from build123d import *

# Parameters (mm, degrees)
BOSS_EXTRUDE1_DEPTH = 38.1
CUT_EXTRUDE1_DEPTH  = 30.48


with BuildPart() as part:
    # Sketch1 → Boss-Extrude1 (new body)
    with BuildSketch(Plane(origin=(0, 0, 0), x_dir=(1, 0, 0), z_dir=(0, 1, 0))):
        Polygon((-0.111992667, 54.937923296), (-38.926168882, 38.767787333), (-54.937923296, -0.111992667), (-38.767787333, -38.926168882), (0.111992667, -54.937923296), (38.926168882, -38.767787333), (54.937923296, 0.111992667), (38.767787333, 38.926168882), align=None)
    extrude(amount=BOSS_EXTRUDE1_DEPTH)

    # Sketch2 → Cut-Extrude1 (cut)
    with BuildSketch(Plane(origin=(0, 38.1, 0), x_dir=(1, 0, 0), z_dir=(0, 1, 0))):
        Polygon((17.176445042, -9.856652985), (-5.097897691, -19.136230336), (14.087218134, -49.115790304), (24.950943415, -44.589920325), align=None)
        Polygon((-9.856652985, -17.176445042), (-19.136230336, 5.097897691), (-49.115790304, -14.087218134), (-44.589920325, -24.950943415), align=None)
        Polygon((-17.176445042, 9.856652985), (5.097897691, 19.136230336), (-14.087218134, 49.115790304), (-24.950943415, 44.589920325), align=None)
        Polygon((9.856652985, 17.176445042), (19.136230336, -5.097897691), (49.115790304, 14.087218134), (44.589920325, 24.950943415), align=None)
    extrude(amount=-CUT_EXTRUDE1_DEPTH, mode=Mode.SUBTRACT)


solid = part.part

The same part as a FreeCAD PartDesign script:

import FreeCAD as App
import Part
import Sketcher
Q = App.Units.Quantity

doc = App.newDocument("Part")
body = doc.addObject("PartDesign::Body", "Body")

sketch1 = doc.addObject("Sketcher::SketchObject", "Sketch")
body.addObject(sketch1)
sketch1.AttachmentSupport = (doc.XZ_Plane, [""])
sketch1.MapMode = "FlatFace"
sketch1.addGeometry(Part.LineSegment(App.Vector(0, -55, 0), App.Vector(-39, -39, 0)), False)
sketch1.addGeometry(Part.LineSegment(App.Vector(-39, -39, 0), App.Vector(-55, 0, 0)), False)
sketch1.addGeometry(Part.LineSegment(App.Vector(-55, 0, 0), App.Vector(-39, 39, 0)), False)
sketch1.addGeometry(Part.LineSegment(App.Vector(-39, 39, 0), App.Vector(0, 55, 0)), False)
sketch1.addGeometry(Part.LineSegment(App.Vector(0, 55, 0), App.Vector(39, 39, 0)), False)
sketch1.addGeometry(Part.LineSegment(App.Vector(39, 39, 0), App.Vector(55, 0, 0)), False)
sketch1.addGeometry(Part.LineSegment(App.Vector(55, 0, 0), App.Vector(39, -39, 0)), False)
sketch1.addGeometry(Part.LineSegment(App.Vector(39, -39, 0), App.Vector(0, -55, 0)), False)
sketch1.addConstraint(Sketcher.Constraint("Coincident", 0, 2, 1, 1))
sketch1.addConstraint(Sketcher.Constraint("Coincident", 1, 2, 2, 1))
sketch1.addConstraint(Sketcher.Constraint("Coincident", 2, 2, 3, 1))
sketch1.addConstraint(Sketcher.Constraint("Coincident", 3, 2, 4, 1))
sketch1.addConstraint(Sketcher.Constraint("Coincident", 4, 2, 5, 1))
sketch1.addConstraint(Sketcher.Constraint("Coincident", 5, 2, 6, 1))
sketch1.addConstraint(Sketcher.Constraint("Coincident", 6, 2, 7, 1))
sketch1.addConstraint(Sketcher.Constraint("Coincident", 7, 2, 0, 1))
sketch1.addConstraint(Sketcher.Constraint("Symmetric", 0, 2, 4, 2, -1, 1))
sketch1.addConstraint(Sketcher.Constraint("Symmetric", 1, 2, 5, 2, -1, 1))
sketch1.addConstraint(Sketcher.Constraint("Symmetric", 2, 2, 6, 2, -1, 1))
sketch1.addConstraint(Sketcher.Constraint("Symmetric", 3, 2, 7, 2, -1, 1))
sketch1.addConstraint(Sketcher.Constraint("Perpendicular", 0, 2))
sketch1.addConstraint(Sketcher.Constraint("Perpendicular", 1, 3))
sketch1.addConstraint(Sketcher.Constraint("Equal", 0, 1))
sketch1.addConstraint(Sketcher.Constraint("Equal", 1, 2))
sketch1.addConstraint(Sketcher.Constraint("Equal", 2, 3))
sketch1.addConstraint(Sketcher.Constraint("DistanceY", 0, 2, 1, 2, Q("1.5307 in")))
sketch1.addConstraint(Sketcher.Constraint("DistanceX", 0, 2, -1, 1, 38.926169))
sketch1.addConstraint(Sketcher.Constraint("DistanceY", 1, 2, 3, 2, 54.825931))
pad1 = doc.addObject("PartDesign::Pad", "Pad")
body.addObject(pad1)
pad1.Profile = sketch1
pad1.Length = Q("1.5 in")
pad1.Reversed = True

sketch2 = doc.addObject("Sketcher::SketchObject", "Sketch001")
body.addObject(sketch2)
sketch2.AttachmentSupport = (doc.XZ_Plane, [""])
sketch2.MapMode = "FlatFace"
sketch2.AttachmentOffset = App.Placement(App.Vector(0, 0, -1.5 * 25.4), App.Rotation())
sketch2.addGeometry(Part.LineSegment(App.Vector(17, 10, 0), App.Vector(-5, 19, 0)), False)
sketch2.addGeometry(Part.LineSegment(App.Vector(-5, 19, 0), App.Vector(14, 49, 0)), False)
sketch2.addGeometry(Part.LineSegment(App.Vector(14, 49, 0), App.Vector(25, 45, 0)), False)
sketch2.addGeometry(Part.LineSegment(App.Vector(25, 45, 0), App.Vector(17, 10, 0)), False)
sketch2.addGeometry(Part.LineSegment(App.Vector(-10, 17, 0), App.Vector(-19, -5, 0)), False)
sketch2.addGeometry(Part.LineSegment(App.Vector(-19, -5, 0), App.Vector(-49, 14, 0)), False)
sketch2.addGeometry(Part.LineSegment(App.Vector(-49, 14, 0), App.Vector(-45, 25, 0)), False)
sketch2.addGeometry(Part.LineSegment(App.Vector(-45, 25, 0), App.Vector(-10, 17, 0)), False)
sketch2.addGeometry(Part.LineSegment(App.Vector(-17, -10, 0), App.Vector(5, -19, 0)), False)
sketch2.addGeometry(Part.LineSegment(App.Vector(5, -19, 0), App.Vector(-14, -49, 0)), False)
sketch2.addGeometry(Part.LineSegment(App.Vector(-14, -49, 0), App.Vector(-25, -45, 0)), False)
sketch2.addGeometry(Part.LineSegment(App.Vector(-25, -45, 0), App.Vector(-17, -10, 0)), False)
sketch2.addGeometry(Part.LineSegment(App.Vector(10, -17, 0), App.Vector(19, 5, 0)), False)
sketch2.addGeometry(Part.LineSegment(App.Vector(19, 5, 0), App.Vector(49, -14, 0)), False)
sketch2.addGeometry(Part.LineSegment(App.Vector(49, -14, 0), App.Vector(45, -25, 0)), False)
sketch2.addGeometry(Part.LineSegment(App.Vector(45, -25, 0), App.Vector(10, -17, 0)), False)
sketch2.addConstraint(Sketcher.Constraint("Coincident", 0, 2, 1, 1))
sketch2.addConstraint(Sketcher.Constraint("Coincident", 1, 2, 2, 1))
sketch2.addConstraint(Sketcher.Constraint("Coincident", 2, 2, 3, 1))
sketch2.addConstraint(Sketcher.Constraint("Coincident", 3, 2, 0, 1))
sketch2.addConstraint(Sketcher.Constraint("Coincident", 4, 2, 5, 1))
sketch2.addConstraint(Sketcher.Constraint("Coincident", 5, 2, 6, 1))
sketch2.addConstraint(Sketcher.Constraint("Coincident", 6, 2, 7, 1))
sketch2.addConstraint(Sketcher.Constraint("Coincident", 7, 2, 4, 1))
sketch2.addConstraint(Sketcher.Constraint("Coincident", 8, 2, 9, 1))
sketch2.addConstraint(Sketcher.Constraint("Coincident", 9, 2, 10, 1))
sketch2.addConstraint(Sketcher.Constraint("Coincident", 10, 2, 11, 1))
sketch2.addConstraint(Sketcher.Constraint("Coincident", 11, 2, 8, 1))
sketch2.addConstraint(Sketcher.Constraint("Coincident", 12, 2, 13, 1))
sketch2.addConstraint(Sketcher.Constraint("Coincident", 13, 2, 14, 1))
sketch2.addConstraint(Sketcher.Constraint("Coincident", 14, 2, 15, 1))
sketch2.addConstraint(Sketcher.Constraint("Coincident", 15, 2, 12, 1))
sketch2.addConstraint(Sketcher.Constraint("Symmetric", 0, 2, 8, 2, -1, 1))
sketch2.addConstraint(Sketcher.Constraint("Symmetric", 1, 2, 9, 2, -1, 1))
sketch2.addConstraint(Sketcher.Constraint("Symmetric", 2, 2, 10, 2, -1, 1))
sketch2.addConstraint(Sketcher.Constraint("Symmetric", 3, 2, 11, 2, -1, 1))
sketch2.addConstraint(Sketcher.Constraint("Symmetric", 4, 2, 12, 2, -1, 1))
sketch2.addConstraint(Sketcher.Constraint("Symmetric", 5, 2, 13, 2, -1, 1))
sketch2.addConstraint(Sketcher.Constraint("Symmetric", 6, 2, 14, 2, -1, 1))
sketch2.addConstraint(Sketcher.Constraint("Symmetric", 7, 2, 15, 2, -1, 1))
sketch2.addConstraint(Sketcher.Constraint("Parallel", 0, 2))
sketch2.addConstraint(Sketcher.Constraint("Perpendicular", 2, 4))
sketch2.addConstraint(Sketcher.Constraint("Perpendicular", 1, 5))
sketch2.addConstraint(Sketcher.Constraint("Parallel", 4, 6))
sketch2.addConstraint(Sketcher.Constraint("Perpendicular", 3, 7))
sketch2.addConstraint(Sketcher.Constraint("Equal", 1, 3))
sketch2.addConstraint(Sketcher.Constraint("Equal", 0, 4))
sketch2.addConstraint(Sketcher.Constraint("Equal", 3, 5))
sketch2.addConstraint(Sketcher.Constraint("Distance", 0, Q("0.95 in")))
sketch2.addConstraint(Sketcher.Constraint("DistanceX", 3, 2, 2, 2, 7.774498))
sketch2.addConstraint(Sketcher.Constraint("DistanceX", 7, 2, 3, 2, 27.033098))
sketch2.addConstraint(Sketcher.Constraint("DistanceY", 11, 2, 7, 2, 27.033098))
sketch2.addConstraint(Sketcher.Constraint("DistanceY", -1, 1, 0, 2, 19.13623))
sketch2.addConstraint(Sketcher.Constraint("DistanceX", -1, 1, 1, 2, 14.087218))
sketch2.addConstraint(Sketcher.Constraint("DistanceY", -1, 1, 1, 2, 49.11579))
sketch2.addConstraint(Sketcher.Constraint("DistanceY", -1, 1, 2, 2, 44.58992))
pocket1 = doc.addObject("PartDesign::Pocket", "Pocket")
body.addObject(pocket1)
pocket1.Profile = sketch2
pocket1.Length = Q("1.2 in")
pocket1.Reversed = True

doc.recompute()
